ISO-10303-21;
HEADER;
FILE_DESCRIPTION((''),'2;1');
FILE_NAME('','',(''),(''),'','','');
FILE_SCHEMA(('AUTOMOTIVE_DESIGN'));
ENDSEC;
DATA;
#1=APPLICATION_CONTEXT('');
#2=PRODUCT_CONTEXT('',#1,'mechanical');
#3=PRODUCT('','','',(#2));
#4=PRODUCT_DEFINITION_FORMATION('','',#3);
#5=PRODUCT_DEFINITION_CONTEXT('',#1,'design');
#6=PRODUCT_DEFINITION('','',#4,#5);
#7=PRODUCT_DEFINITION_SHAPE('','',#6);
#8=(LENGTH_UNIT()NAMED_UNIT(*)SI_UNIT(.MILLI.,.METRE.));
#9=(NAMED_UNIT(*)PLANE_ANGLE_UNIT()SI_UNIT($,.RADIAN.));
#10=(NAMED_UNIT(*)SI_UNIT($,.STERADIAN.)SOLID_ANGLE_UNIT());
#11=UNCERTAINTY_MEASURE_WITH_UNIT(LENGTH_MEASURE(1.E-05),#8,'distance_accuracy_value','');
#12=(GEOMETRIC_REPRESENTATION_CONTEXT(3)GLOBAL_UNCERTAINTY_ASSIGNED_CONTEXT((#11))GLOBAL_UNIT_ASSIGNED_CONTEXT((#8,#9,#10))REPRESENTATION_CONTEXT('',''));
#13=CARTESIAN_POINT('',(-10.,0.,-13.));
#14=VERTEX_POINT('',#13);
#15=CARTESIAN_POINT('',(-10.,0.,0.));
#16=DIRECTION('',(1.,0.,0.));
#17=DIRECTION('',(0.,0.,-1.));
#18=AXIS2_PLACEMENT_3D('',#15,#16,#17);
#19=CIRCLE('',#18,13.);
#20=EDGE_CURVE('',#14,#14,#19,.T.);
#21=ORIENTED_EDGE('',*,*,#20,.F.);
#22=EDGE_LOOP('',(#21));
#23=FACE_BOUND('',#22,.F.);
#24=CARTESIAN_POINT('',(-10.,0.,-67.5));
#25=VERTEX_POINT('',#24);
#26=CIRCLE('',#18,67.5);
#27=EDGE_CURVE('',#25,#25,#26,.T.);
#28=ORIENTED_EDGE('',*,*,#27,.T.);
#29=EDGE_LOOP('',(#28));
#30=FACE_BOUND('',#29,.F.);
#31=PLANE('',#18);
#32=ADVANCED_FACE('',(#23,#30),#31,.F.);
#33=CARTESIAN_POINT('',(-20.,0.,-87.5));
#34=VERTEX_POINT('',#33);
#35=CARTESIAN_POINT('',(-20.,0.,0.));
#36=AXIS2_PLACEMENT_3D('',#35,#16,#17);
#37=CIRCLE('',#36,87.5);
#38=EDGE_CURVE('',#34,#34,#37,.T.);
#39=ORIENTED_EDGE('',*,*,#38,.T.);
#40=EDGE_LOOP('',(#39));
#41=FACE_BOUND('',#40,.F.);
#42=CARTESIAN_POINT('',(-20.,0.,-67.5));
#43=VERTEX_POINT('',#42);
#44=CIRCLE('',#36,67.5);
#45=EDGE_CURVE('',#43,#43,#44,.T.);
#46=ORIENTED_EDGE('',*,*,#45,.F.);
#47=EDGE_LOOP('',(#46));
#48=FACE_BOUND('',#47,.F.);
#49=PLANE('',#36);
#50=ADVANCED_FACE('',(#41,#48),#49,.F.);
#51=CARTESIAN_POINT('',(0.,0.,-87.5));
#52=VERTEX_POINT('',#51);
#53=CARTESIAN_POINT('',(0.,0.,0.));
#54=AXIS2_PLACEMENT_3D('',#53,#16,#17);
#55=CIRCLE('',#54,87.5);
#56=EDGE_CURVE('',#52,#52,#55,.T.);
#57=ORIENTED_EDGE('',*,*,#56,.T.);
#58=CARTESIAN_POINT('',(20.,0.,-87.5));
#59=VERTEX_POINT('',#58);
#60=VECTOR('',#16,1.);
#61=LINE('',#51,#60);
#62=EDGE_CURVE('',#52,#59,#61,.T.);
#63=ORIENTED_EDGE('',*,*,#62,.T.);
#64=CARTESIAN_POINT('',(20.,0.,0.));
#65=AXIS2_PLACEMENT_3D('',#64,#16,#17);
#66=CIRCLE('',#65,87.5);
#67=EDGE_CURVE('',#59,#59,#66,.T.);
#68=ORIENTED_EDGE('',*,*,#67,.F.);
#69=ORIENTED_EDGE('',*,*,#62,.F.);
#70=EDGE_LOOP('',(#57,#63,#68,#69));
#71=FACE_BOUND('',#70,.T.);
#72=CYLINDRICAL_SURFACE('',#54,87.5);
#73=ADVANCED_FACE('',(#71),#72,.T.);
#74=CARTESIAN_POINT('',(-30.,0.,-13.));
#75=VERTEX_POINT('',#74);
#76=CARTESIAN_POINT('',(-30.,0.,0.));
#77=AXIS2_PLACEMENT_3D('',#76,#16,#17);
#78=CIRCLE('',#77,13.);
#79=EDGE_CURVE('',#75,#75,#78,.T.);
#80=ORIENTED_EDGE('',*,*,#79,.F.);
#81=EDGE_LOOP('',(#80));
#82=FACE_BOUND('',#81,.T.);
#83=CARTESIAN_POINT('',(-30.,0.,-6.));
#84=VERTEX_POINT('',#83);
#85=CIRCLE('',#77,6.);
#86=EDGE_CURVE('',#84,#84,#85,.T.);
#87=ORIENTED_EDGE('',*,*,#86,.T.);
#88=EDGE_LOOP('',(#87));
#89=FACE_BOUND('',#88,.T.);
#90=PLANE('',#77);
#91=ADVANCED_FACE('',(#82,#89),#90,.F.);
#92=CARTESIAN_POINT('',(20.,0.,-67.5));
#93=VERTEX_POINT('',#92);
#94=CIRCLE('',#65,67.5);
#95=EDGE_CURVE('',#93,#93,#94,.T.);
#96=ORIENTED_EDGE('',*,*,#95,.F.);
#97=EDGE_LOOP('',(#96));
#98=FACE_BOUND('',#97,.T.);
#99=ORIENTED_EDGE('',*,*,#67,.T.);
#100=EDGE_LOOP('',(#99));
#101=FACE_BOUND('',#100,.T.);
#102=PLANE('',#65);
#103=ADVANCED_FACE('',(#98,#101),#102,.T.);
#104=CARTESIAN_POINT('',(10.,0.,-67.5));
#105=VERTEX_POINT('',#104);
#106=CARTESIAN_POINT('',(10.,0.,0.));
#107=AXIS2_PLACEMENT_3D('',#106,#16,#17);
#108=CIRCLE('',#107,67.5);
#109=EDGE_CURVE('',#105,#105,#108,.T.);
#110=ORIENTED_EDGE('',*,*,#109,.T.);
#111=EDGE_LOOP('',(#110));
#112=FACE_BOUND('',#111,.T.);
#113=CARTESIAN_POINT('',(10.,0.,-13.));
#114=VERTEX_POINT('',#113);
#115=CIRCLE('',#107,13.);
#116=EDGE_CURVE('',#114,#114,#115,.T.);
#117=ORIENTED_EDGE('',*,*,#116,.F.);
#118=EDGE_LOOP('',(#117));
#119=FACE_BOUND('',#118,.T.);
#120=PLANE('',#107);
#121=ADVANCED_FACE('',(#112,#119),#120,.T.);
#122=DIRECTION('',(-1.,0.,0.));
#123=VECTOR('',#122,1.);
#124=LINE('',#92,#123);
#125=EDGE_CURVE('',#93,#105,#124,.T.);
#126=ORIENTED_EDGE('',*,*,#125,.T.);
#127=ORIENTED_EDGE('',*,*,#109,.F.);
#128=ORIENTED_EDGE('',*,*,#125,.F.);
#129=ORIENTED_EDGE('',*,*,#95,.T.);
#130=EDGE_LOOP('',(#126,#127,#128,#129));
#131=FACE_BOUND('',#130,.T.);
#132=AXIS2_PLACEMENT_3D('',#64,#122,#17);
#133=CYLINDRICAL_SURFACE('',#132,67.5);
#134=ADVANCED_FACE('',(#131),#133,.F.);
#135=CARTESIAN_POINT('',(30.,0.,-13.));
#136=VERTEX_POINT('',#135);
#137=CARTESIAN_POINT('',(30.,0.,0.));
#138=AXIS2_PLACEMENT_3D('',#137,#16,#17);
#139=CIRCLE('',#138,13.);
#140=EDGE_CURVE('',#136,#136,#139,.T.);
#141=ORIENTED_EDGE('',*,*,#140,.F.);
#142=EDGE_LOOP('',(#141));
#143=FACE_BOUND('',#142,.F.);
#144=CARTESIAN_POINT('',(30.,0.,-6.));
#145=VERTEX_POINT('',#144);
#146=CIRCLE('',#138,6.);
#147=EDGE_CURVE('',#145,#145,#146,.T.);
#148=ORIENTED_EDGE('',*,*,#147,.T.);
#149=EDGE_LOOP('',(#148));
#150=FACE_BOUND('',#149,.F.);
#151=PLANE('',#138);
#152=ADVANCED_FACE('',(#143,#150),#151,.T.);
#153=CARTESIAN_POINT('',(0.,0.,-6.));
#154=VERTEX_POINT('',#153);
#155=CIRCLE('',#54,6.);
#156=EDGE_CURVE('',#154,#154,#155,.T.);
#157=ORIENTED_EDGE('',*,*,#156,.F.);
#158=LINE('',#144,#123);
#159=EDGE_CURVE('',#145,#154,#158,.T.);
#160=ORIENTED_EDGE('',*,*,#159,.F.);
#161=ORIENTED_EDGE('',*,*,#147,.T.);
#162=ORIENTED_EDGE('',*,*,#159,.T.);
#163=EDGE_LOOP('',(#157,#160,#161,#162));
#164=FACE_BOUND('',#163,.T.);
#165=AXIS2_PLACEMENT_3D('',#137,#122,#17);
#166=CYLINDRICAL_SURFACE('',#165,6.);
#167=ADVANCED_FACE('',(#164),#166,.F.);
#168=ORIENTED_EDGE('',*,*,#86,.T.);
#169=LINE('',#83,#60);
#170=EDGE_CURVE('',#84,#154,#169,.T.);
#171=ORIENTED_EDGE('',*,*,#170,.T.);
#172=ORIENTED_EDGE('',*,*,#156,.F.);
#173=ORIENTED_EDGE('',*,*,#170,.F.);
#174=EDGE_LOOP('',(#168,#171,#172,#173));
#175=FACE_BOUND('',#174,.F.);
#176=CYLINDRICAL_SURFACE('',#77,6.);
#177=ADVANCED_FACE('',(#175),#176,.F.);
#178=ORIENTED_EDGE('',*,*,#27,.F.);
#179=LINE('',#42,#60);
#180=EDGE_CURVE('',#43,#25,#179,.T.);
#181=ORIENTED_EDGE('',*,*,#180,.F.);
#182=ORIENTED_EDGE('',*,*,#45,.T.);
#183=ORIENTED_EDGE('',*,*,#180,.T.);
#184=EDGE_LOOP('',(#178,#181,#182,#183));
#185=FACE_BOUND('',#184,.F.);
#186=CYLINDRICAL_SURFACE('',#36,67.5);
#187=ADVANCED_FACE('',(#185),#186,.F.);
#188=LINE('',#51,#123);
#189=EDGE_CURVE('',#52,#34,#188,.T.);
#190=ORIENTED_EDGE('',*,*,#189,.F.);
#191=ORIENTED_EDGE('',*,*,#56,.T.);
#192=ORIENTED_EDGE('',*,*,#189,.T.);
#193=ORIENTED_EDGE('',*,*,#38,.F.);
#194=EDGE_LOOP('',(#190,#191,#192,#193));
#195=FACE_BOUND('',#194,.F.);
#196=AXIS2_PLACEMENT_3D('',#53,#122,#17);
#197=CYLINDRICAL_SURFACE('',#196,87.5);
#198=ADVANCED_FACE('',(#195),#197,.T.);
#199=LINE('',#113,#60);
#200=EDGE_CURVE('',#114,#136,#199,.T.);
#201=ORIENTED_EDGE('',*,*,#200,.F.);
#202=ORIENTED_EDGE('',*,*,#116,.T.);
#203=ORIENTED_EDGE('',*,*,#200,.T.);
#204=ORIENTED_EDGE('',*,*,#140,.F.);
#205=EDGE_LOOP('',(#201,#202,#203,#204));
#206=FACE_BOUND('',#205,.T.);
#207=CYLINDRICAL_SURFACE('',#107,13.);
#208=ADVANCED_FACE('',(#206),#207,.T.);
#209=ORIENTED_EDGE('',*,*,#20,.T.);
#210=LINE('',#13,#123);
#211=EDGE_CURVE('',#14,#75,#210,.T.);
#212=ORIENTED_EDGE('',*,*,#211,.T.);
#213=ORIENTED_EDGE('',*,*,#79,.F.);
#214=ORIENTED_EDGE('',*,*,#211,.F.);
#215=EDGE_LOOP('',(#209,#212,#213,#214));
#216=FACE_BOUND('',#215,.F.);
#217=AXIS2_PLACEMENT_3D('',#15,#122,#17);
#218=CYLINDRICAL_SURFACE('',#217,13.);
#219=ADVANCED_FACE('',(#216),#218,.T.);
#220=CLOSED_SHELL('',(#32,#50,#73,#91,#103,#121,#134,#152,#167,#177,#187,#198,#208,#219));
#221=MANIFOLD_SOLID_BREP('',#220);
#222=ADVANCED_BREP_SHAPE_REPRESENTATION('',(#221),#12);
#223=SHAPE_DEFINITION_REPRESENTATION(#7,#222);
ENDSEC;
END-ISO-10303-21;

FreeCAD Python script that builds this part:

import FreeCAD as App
import Part
import Sketcher

V = App.Vector
Q = App.Units.Quantity

doc = App.newDocument("Part")
body = doc.addObject("PartDesign::Body", "Body")

# Sketch on XZ plane
sketch1 = body.newObject("Sketcher::SketchObject", "Sketch")
sketch1.AttachmentSupport = (doc.getObject("XZ_Plane"), [""])
sketch1.MapMode = "FlatFace"
sketch1.addGeometry([
    Part.LineSegment(V(-30, -13, 0), V(-30, -6, 0)),  # 0
    Part.LineSegment(V(-30, -6, 0), V(30, -6, 0)),  # 1
    Part.LineSegment(V(30, -6, 0), V(30, -13, 0)),  # 2
    Part.LineSegment(V(30, -13, 0), V(10, -13, 0)),  # 3
    Part.LineSegment(V(10, -13, 0), V(10, -68, 0)),  # 4
    Part.LineSegment(V(10, -68, 0), V(20, -68, 0)),  # 5
    Part.LineSegment(V(20, -68, 0), V(20, -88, 0)),  # 6
    Part.LineSegment(V(20, -88, 0), V(-20, -88, 0)),  # 7
    Part.LineSegment(V(-20, -88, 0), V(-20, -68, 0)),  # 8
    Part.LineSegment(V(-20, -68, 0), V(-10, -68, 0)),  # 9
    Part.LineSegment(V(-10, -68, 0), V(-10, -13, 0)),  # 10
    Part.LineSegment(V(-10, -13, 0), V(-30, -13, 0)),  # 11
], False)
sketch1.addConstraint([
    Sketcher.Constraint("Coincident", 0, 2, 1, 1),
    Sketcher.Constraint("Coincident", 1, 2, 2, 1),
    Sketcher.Constraint("Coincident", 2, 2, 3, 1),
    Sketcher.Constraint("Coincident", 3, 2, 4, 1),
    Sketcher.Constraint("Coincident", 4, 2, 5, 1),
    Sketcher.Constraint("Coincident", 5, 2, 6, 1),
    Sketcher.Constraint("Coincident", 6, 2, 7, 1),
    Sketcher.Constraint("Coincident", 7, 2, 8, 1),
    Sketcher.Constraint("Coincident", 8, 2, 9, 1),
    Sketcher.Constraint("Coincident", 9, 2, 10, 1),
    Sketcher.Constraint("Coincident", 10, 2, 11, 1),
    Sketcher.Constraint("Coincident", 11, 2, 0, 1),
    Sketcher.Constraint("Vertical", 0),
    Sketcher.Constraint("Horizontal", 1),
    Sketcher.Constraint("Vertical", 2),
    Sketcher.Constraint("Horizontal", 3),
    Sketcher.Constraint("Vertical", 4),
    Sketcher.Constraint("Horizontal", 5),
    Sketcher.Constraint("Vertical", 6),
    Sketcher.Constraint("Horizontal", 7),
    Sketcher.Constraint("Vertical", 8),
    Sketcher.Constraint("Horizontal", 9),
    Sketcher.Constraint("Vertical", 10),
    Sketcher.Constraint("Horizontal", 11),
    Sketcher.Constraint("Symmetric", 5, 2, 8, 2, -2),
    Sketcher.Constraint("Symmetric", 3, 2, 10, 2, -2),
    Sketcher.Constraint("Equal", 3, 11),
    Sketcher.Constraint("Equal", 11, 6),
    Sketcher.Constraint("DistanceX", 3, 2, 3, 1, Q("20 mm")),
    Sketcher.Constraint("DistanceX", 5, 1, 5, 2, Q("10 mm")),
    Sketcher.Constraint("DistanceY", 0, 1, 0, 2, Q("7 mm")),
    Sketcher.Constraint("DistanceX", 0, 2, -1, 1, Q("30 mm")),
    Sketcher.Constraint("DistanceY", 0, 2, -1, 1, Q("6 mm")),
    Sketcher.Constraint("DistanceY", 6, 2, -1, 1, Q("87.5 mm")),
])
revolution = body.newObject("PartDesign::Revolution", "Revolution")
revolution.Profile = sketch1
revolution.ReferenceAxis = (sketch1, ["H_Axis"])
revolution.Angle = 360

doc.recompute()
